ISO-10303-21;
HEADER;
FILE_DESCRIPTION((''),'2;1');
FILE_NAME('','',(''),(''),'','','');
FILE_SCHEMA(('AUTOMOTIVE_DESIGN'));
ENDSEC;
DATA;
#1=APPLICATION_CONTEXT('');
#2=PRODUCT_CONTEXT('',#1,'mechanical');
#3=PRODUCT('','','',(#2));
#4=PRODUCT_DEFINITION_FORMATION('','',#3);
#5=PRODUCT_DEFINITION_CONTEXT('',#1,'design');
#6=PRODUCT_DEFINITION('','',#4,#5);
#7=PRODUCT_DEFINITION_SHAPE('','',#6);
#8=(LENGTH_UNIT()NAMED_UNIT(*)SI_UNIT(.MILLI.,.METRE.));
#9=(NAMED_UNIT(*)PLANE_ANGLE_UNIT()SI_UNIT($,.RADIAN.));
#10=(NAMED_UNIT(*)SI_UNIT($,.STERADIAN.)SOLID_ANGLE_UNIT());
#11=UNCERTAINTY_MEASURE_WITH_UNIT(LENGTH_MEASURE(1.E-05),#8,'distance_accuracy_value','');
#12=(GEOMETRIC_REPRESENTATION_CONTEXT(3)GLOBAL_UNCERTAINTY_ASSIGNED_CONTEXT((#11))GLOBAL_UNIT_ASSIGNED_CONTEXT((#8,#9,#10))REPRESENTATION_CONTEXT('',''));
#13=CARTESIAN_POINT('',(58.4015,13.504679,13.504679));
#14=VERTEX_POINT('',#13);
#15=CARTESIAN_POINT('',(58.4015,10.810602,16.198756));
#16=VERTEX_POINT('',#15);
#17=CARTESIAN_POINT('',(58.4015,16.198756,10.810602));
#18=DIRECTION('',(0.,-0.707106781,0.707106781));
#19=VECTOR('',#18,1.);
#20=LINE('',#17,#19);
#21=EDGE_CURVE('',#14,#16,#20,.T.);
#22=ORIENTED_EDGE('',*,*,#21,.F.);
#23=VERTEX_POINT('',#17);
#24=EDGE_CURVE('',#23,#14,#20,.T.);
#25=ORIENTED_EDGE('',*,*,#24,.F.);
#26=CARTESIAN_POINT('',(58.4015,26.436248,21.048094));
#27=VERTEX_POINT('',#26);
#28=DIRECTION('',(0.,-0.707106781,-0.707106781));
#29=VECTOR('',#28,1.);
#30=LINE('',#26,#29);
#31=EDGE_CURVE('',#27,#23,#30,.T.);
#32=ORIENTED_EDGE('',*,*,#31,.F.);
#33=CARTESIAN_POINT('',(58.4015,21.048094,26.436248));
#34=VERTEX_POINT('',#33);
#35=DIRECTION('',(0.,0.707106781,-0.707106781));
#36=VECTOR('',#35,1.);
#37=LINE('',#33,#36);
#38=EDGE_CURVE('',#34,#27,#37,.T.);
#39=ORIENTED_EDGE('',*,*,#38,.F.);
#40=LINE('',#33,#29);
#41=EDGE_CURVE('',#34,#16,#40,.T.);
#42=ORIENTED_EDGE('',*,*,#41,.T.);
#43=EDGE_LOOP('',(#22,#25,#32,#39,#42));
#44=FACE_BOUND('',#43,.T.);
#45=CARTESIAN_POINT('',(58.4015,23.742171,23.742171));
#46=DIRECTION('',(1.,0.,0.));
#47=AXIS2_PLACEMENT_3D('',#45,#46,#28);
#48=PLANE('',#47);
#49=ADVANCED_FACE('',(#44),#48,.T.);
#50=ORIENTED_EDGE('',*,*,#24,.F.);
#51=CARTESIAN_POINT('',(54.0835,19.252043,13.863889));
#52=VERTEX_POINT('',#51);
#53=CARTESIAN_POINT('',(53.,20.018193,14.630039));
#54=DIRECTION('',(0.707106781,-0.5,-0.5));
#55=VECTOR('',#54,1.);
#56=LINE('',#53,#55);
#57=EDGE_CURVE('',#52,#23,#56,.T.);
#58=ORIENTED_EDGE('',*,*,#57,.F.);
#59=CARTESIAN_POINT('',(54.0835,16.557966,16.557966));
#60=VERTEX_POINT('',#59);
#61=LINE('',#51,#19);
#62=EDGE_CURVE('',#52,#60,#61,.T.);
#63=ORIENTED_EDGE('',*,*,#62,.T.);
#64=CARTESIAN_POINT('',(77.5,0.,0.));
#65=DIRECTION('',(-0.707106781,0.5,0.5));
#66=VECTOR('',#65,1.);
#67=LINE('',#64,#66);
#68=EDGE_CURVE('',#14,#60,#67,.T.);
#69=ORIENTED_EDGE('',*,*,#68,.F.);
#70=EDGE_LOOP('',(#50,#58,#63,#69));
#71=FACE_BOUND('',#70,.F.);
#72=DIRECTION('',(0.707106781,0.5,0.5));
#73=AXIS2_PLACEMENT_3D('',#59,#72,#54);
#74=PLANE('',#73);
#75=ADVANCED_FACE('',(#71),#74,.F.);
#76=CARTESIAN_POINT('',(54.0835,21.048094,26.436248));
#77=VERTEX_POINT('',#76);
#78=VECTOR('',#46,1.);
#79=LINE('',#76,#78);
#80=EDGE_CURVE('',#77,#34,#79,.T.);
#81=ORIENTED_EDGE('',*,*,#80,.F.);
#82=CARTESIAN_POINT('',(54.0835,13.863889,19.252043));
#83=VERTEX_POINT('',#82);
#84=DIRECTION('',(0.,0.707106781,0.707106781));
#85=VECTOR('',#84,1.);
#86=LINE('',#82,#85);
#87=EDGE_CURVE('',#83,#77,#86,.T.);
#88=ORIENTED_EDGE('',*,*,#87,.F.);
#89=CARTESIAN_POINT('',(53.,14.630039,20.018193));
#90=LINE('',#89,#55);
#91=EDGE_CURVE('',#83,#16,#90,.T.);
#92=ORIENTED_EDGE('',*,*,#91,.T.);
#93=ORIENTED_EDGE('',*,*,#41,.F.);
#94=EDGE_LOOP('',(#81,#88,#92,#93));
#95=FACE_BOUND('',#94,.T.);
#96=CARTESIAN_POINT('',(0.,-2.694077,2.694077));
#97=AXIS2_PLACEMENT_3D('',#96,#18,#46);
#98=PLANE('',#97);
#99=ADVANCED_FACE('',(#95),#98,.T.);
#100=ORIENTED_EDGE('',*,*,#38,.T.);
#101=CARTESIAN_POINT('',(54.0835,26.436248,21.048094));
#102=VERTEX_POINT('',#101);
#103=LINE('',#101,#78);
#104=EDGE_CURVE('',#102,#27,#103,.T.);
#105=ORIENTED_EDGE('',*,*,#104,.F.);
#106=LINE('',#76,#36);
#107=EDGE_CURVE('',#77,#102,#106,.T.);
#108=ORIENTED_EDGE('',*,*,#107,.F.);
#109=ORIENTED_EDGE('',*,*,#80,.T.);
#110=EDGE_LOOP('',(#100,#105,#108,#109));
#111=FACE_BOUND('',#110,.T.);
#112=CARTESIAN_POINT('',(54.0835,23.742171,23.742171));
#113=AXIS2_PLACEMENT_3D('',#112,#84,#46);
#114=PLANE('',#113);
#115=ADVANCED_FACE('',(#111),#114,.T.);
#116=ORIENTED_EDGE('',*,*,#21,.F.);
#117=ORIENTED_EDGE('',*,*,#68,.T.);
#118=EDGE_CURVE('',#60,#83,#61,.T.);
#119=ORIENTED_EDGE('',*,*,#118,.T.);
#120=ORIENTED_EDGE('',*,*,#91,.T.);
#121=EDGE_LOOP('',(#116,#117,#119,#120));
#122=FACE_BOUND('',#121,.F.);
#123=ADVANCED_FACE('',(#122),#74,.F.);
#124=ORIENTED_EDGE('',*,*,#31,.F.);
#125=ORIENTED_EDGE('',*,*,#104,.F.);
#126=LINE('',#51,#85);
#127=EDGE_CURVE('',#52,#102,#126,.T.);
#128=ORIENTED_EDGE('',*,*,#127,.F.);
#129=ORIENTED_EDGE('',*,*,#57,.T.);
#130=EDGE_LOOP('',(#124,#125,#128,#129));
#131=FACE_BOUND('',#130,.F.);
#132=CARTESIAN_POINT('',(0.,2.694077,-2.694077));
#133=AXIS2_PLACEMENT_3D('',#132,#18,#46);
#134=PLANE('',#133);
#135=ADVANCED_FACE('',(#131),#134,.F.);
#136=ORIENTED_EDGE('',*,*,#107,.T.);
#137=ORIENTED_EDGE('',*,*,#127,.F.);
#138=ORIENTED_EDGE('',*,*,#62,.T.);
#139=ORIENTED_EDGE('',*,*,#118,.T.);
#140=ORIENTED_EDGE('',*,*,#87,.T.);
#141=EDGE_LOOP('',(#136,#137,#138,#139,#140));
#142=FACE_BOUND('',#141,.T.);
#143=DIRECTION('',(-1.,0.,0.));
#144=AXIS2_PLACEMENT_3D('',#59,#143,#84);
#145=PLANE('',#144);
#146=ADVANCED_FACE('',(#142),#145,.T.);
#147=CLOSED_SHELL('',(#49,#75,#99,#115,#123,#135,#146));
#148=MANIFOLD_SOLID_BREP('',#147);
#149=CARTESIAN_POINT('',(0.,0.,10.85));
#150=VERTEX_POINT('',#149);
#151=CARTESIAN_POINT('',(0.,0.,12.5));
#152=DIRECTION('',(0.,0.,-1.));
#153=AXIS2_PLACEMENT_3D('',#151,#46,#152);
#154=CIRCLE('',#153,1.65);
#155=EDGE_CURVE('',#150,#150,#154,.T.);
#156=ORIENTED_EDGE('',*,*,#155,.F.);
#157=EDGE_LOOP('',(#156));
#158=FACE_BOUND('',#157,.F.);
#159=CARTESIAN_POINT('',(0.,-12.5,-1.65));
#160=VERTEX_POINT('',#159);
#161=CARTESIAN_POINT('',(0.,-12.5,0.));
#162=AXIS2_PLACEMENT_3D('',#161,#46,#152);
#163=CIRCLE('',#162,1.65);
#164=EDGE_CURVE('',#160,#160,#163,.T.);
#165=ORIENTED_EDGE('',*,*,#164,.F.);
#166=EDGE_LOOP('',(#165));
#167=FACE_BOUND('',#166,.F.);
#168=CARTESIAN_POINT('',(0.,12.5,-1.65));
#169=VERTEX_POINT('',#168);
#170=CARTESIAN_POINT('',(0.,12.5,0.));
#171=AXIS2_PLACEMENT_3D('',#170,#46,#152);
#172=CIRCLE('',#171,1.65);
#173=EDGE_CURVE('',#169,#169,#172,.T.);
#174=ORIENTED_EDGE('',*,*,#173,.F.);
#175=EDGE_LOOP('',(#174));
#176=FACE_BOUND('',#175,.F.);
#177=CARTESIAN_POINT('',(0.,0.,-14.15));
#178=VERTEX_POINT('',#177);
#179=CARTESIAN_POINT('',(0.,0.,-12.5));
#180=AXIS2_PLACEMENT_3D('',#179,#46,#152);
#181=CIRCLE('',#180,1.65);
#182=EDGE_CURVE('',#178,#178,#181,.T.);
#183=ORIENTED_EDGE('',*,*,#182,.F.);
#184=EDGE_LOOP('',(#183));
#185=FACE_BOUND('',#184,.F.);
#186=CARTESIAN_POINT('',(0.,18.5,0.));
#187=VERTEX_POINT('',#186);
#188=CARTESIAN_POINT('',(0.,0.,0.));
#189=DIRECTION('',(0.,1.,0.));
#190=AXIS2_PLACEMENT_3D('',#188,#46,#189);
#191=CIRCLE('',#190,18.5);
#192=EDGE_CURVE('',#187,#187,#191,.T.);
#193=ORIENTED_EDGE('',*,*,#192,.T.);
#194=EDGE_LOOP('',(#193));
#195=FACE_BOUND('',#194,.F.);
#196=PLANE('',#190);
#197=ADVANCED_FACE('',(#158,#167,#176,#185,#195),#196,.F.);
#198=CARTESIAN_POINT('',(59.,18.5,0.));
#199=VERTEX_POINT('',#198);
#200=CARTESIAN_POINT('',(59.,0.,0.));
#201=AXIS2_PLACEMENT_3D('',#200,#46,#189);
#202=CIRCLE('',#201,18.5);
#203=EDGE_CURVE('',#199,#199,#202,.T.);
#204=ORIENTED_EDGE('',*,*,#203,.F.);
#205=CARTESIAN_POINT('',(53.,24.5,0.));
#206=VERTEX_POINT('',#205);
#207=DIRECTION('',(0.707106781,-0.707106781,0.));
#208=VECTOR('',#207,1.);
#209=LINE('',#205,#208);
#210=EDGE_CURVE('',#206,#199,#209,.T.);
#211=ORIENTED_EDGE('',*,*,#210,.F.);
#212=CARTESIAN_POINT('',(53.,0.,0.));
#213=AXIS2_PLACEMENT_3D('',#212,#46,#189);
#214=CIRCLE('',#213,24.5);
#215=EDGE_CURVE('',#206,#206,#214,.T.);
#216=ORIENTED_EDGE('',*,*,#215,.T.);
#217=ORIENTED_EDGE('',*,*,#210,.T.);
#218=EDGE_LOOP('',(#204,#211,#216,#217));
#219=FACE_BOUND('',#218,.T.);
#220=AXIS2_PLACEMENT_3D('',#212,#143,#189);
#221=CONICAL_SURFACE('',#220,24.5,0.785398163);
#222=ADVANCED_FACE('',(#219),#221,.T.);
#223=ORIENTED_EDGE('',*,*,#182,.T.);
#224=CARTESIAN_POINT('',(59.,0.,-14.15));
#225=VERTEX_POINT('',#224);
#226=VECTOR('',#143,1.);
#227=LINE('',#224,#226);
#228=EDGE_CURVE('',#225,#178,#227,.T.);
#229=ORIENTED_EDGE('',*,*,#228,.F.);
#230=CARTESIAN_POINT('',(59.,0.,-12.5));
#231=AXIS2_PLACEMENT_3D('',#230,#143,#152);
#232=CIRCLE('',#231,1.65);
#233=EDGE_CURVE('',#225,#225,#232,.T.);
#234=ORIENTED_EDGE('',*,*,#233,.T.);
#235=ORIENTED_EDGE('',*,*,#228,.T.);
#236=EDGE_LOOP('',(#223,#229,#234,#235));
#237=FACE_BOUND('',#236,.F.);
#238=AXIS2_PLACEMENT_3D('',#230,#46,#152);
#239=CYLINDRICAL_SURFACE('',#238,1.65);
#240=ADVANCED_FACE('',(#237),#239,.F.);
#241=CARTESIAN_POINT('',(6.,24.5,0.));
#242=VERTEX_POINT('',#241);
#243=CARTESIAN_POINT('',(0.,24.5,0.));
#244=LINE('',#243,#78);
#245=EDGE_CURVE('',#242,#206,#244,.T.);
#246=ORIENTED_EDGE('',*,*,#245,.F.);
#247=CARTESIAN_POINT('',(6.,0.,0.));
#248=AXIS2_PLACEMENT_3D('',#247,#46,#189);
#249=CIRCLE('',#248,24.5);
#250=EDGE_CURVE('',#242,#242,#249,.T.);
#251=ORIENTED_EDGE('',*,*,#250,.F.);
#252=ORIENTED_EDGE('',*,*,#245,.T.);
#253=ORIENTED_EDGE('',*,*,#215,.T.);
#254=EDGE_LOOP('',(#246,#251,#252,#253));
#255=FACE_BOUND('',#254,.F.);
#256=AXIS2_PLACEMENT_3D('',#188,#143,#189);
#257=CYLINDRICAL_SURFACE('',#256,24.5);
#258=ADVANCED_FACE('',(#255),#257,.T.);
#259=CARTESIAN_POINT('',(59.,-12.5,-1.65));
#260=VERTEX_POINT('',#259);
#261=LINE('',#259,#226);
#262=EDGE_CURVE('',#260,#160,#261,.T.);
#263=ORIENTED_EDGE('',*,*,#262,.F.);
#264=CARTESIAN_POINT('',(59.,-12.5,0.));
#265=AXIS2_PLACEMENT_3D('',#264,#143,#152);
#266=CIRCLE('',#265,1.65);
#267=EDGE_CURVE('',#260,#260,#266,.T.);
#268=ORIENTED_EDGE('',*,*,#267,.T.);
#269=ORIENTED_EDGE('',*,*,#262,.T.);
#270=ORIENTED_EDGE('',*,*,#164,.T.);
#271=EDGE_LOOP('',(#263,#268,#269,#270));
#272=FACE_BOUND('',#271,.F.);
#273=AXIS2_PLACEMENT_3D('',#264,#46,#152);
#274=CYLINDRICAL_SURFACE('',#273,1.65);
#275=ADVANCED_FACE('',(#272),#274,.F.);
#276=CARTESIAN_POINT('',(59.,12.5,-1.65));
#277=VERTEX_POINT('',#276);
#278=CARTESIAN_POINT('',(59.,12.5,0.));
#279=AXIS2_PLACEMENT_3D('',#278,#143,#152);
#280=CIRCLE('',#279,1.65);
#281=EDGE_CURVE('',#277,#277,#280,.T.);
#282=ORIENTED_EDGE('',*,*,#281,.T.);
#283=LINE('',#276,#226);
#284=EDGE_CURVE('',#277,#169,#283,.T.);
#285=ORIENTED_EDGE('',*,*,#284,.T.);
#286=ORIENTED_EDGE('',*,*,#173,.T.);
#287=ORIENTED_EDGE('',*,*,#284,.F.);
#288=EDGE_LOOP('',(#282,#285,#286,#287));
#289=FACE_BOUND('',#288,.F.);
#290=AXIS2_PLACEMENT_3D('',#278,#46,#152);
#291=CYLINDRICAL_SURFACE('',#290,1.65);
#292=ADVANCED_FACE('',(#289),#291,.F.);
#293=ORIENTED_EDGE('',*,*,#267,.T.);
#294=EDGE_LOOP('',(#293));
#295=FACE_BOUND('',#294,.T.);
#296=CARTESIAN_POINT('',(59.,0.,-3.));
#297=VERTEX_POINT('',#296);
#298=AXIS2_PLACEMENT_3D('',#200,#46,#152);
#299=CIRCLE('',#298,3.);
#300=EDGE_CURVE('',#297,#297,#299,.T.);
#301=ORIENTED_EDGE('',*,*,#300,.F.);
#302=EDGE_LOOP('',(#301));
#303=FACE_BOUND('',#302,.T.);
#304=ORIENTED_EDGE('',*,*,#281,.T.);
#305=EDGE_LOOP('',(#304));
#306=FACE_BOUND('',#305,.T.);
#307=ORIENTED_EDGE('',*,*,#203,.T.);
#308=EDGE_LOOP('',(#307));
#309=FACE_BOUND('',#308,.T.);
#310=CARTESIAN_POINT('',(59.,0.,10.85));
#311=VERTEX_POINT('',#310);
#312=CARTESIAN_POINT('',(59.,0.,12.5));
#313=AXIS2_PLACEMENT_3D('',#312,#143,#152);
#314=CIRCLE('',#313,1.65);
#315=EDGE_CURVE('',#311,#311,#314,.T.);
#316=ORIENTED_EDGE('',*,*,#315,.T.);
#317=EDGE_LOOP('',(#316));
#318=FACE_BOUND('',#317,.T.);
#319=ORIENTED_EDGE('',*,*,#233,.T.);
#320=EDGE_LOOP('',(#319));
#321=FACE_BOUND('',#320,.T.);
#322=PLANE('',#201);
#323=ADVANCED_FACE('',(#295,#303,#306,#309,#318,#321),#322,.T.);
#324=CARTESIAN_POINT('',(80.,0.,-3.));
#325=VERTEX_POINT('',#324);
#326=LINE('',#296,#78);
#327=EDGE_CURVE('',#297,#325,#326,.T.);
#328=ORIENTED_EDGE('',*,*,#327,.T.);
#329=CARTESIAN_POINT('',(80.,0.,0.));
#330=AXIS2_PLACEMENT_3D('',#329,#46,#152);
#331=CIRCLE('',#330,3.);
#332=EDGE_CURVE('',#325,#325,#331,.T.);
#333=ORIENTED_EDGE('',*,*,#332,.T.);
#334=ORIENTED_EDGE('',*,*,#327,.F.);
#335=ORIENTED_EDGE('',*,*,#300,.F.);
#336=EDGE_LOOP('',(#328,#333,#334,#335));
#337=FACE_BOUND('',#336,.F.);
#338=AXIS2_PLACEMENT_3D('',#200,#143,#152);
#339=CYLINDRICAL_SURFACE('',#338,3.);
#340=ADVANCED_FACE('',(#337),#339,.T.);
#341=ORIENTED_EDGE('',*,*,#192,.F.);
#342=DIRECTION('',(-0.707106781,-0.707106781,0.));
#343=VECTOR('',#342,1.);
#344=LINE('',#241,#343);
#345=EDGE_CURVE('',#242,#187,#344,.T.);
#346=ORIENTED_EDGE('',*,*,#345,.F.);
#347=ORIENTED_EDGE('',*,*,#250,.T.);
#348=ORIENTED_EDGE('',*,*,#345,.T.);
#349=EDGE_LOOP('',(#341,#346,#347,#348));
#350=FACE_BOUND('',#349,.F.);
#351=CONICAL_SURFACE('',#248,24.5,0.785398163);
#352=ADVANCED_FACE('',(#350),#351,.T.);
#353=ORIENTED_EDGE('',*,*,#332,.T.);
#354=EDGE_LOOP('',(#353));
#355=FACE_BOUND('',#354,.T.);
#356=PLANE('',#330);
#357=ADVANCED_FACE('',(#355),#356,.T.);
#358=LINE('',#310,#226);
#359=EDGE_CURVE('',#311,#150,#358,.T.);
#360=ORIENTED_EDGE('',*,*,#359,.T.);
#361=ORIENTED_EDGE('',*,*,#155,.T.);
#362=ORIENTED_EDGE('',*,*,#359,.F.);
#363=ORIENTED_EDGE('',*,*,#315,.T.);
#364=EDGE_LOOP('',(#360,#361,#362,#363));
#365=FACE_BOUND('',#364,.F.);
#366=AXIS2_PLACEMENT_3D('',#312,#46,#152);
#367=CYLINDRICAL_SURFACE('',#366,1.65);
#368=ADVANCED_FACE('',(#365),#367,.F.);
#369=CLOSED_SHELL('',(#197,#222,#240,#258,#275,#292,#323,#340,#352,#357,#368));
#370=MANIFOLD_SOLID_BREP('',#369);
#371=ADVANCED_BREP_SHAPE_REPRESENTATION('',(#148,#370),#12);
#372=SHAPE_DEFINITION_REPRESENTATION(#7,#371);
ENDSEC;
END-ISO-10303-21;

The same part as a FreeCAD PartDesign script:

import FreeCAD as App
import Part
import Sketcher
Q = App.Units.Quantity


def edges_at(feature, points):
    """Names of the edges that pass closest to the given points."""
    edges = feature.Shape.Edges
    near = lambda p: min(range(len(edges)), key=lambda i: edges[i].distToShape(Part.Vertex(*p))[0])
    return sorted({f"Edge{near(p) + 1}" for p in points})

doc = App.newDocument("Part")
body = doc.addObject("PartDesign::Body", "Body")
body.AllowCompound = True

sketch1 = body.newObject("Sketcher::SketchObject", "Sketch")
sketch1.AttachmentSupport = (doc.getObject("YZ_Plane"), [""])
sketch1.MapMode = "FlatFace"
sketch1.addGeometry(Part.Circle(App.Vector(0, 0, 0), App.Vector(0, 0, 1), 24), False)
sketch1.addConstraint([
    Sketcher.Constraint("Coincident", 0, 3, -1, 1),
    Sketcher.Constraint("Diameter", 0, Q("49 mm")),
])
pad1 = body.newObject("PartDesign::Pad", "Pad")
pad1.Profile = sketch1
pad1.Length = 59

sketch2 = body.newObject("Sketcher::SketchObject", "Sketch001")
sketch2.AttachmentSupport = (doc.getObject("YZ_Plane"), [""])
sketch2.MapMode = "FlatFace"
sketch2.AttachmentOffset = App.Placement(App.Vector(0, 0, 59), App.Rotation())
sketch2.addGeometry(Part.Circle(App.Vector(0, 0, 0), App.Vector(0, 0, 1), 3), False)
sketch2.addConstraint([
    Sketcher.Constraint("Coincident", 0, 3, -1, 1),
    Sketcher.Constraint("Diameter", 0, Q("6 mm")),
])
pad2 = body.newObject("PartDesign::Pad", "Pad001")
pad2.Profile = sketch2
pad2.Length = 21

sketch3 = body.newObject("Sketcher::SketchObject", "Sketch002")
sketch3.AttachmentSupport = (doc.getObject("YZ_Plane"), [""])
sketch3.MapMode = "FlatFace"
sketch3.AttachmentOffset = App.Placement(App.Vector(0, 0, 59), App.Rotation())
sketch3.addGeometry([
    Part.Circle(App.Vector(12.5, 0, 0), App.Vector(0, 0, 1), 1.6),
    Part.Circle(App.Vector(0, -12.5, 0), App.Vector(0, 0, 1), 1.6),
    Part.Circle(App.Vector(-12.5, 0, 0), App.Vector(0, 0, 1), 1.6),
    Part.Circle(App.Vector(0, 12.5, 0), App.Vector(0, 0, 1), 1.6),
], False)
sketch3.addConstraint([
    Sketcher.Constraint("Equal", 0, 1),
    Sketcher.Constraint("Equal", 1, 2),
    Sketcher.Constraint("Equal", 2, 3),
    Sketcher.Constraint("Symmetric", 0, 3, 2, 3, -1, 1),
    Sketcher.Constraint("Symmetric", 1, 3, 3, 3, -1, 1),
    Sketcher.Constraint("PointOnObject", 0, 3, -1),
    Sketcher.Constraint("PointOnObject", 1, 3, -2),
    Sketcher.Constraint("Diameter", 0, Q("3.3 mm")),
    Sketcher.Constraint("DistanceX", 2, 3, 0, 3, Q("25 mm")),
    Sketcher.Constraint("DistanceY", 1, 3, 3, 3, Q("25 mm")),
])
pocket1 = body.newObject("PartDesign::Pocket", "Pocket")
pocket1.Profile = sketch3
pocket1.Type = "ThroughAll"
doc.recompute()

chamfer = body.newObject("PartDesign::Chamfer", "Chamfer")
chamfer.Base = (pocket1, edges_at(pocket1, [(59, -24.5, 0), (0, -24.5, 0)]))
chamfer.Size = 6

sketch4 = body.newObject("Sketcher::SketchObject", "Sketch003")
sketch4.Placement = App.Placement(App.Vector(0, 0, 0), App.Rotation(App.Vector(1, 0, 0), App.Vector(0, 0.707106781, 0.707106781), App.Vector(0, -0.707106781, 0.707106781), "ZXY"))
sketch4.addGeometry([
    Part.LineSegment(App.Vector(54.1, 33.6, 0), App.Vector(54.1, 23.4, 0)),
    Part.LineSegment(App.Vector(54.1, 23.4, 0), App.Vector(58.4, 19.1, 0)),
    Part.LineSegment(App.Vector(58.4, 19.1, 0), App.Vector(58.4, 33.6, 0)),
    Part.LineSegment(App.Vector(58.4, 33.6, 0), App.Vector(54.1, 33.6, 0)),
], False)
sketch4.addConstraint([
    Sketcher.Constraint("Coincident", 0, 2, 1, 1),
    Sketcher.Constraint("Coincident", 1, 2, 2, 1),
    Sketcher.Constraint("Coincident", 2, 2, 3, 1),
    Sketcher.Constraint("Coincident", 3, 2, 0, 1),
    Sketcher.Constraint("Vertical", 0),
    Sketcher.Constraint("Vertical", 2),
    Sketcher.Constraint("Horizontal", 3),
    Sketcher.Constraint("DistanceY", 0, 2, 0, 1, Q("10.16 mm")),
    Sketcher.Constraint("DistanceX", 3, 2, 3, 1, Q("4.318 mm")),
    Sketcher.Constraint("Angle", 1, Q("-45 deg")),
    Sketcher.Constraint("DistanceX", -1, 1, 0, 2, Q("54.0835 mm")),
    Sketcher.Constraint("DistanceY", -1, 1, 0, 2, Q("23.4165 mm")),
])
pad3 = body.newObject("PartDesign::Pad", "Pad002")
pad3.Profile = sketch4
pad3.Length = 7.62
pad3.Midplane = True

doc.recompute()
